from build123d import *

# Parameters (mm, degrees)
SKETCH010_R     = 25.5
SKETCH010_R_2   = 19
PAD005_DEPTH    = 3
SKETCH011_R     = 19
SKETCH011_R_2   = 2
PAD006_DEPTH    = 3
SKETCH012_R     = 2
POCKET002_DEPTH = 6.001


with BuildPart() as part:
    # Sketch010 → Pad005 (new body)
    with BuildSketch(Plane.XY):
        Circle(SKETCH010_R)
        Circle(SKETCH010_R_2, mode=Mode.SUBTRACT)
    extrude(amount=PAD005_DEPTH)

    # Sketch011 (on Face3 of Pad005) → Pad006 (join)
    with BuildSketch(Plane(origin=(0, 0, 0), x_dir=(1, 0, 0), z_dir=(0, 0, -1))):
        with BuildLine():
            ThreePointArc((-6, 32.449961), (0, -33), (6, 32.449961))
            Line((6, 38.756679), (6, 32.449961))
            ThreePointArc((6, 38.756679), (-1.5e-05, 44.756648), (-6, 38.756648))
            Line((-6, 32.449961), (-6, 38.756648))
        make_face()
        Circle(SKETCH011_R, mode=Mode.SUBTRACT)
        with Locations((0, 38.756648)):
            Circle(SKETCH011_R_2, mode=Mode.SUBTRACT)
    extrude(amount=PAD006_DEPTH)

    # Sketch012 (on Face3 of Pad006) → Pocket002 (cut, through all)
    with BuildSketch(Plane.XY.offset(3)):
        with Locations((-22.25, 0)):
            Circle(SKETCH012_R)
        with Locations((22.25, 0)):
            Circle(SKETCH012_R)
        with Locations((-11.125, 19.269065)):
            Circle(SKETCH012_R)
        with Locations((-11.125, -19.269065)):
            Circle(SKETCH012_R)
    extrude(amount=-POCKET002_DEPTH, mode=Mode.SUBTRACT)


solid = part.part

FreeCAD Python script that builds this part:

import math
import FreeCAD as App
import Part
import Sketcher
from FreeCAD import Vector
Q = App.Units.Quantity

doc = App.newDocument("Part")
body = doc.addObject("PartDesign::Body", "Body")

# Sketch on XY plane
sketch1 = body.newObject("Sketcher::SketchObject", "Sketch")
sketch1.AttachmentSupport = (doc.getObject("XY_Plane"), [""])
sketch1.MapMode = "FlatFace"
sketch1.addGeometry([
    Part.Circle(Vector(0, 0, 0), Vector(0, 0, 1), 26),
    Part.Circle(Vector(0, 0, 0), Vector(0, 0, 1), 19),
], False)
sketch1.addConstraint([
    Sketcher.Constraint("Coincident", 0, 3, -1, 1),
    Sketcher.Constraint("Coincident", 1, 3, -1, 1),
    Sketcher.Constraint("Diameter", 0, Q("51 mm")),
    Sketcher.Constraint("Diameter", 1, Q("38 mm")),
])
pad1 = body.newObject("PartDesign::Pad", "Pad")
pad1.Profile = sketch1
pad1.Length = 3

# Sketch on XY plane
sketch2 = body.newObject("Sketcher::SketchObject", "Sketch001")
sketch2.AttachmentSupport = (doc.getObject("XY_Plane"), [""])
sketch2.MapMode = "FlatFace"
sketch2.addGeometry([
    Part.ArcOfCircle(Part.Circle(Vector(0, 0, 0), Vector(0, 0, 1), 33), math.radians(-80), math.radians(260)),  # 0
    Part.LineSegment(Vector(6, -32.4, 0), Vector(6, -38.8, 0)),  # 1
    Part.ArcOfCircle(Part.Circle(Vector(0, -38.8, 0), Vector(0, 0, 1), 6), math.radians(180), math.radians(360)),  # 2
    Part.LineSegment(Vector(-6, -38.8, 0), Vector(-6, -32.4, 0)),  # 3
    Part.Circle(Vector(0, 0, 0), Vector(0, 0, 1), 19),  # 4
    Part.Circle(Vector(0, -38.8, 0), Vector(0, 0, 1), 2),  # 5
], False)
sketch2.addConstraint([
    Sketcher.Constraint("Coincident", 0, 1, 1, 1),
    Sketcher.Constraint("Coincident", 1, 2, 2, 2),
    Sketcher.Constraint("Tangent", 2, 1, 3, 1),
    Sketcher.Constraint("Coincident", 3, 2, 0, 2),
    Sketcher.Constraint("Vertical", 1),
    Sketcher.Constraint("Vertical", 3),
    Sketcher.Constraint("Coincident", 0, 3, -1, 1),
    Sketcher.Constraint("Coincident", 4, 3, -1, 1),
    Sketcher.Constraint("Coincident", 5, 3, 2, 3),
    Sketcher.Constraint("PointOnObject", 2, 3, -2),
    Sketcher.Constraint("Diameter", 4, Q("38 mm")),
    Sketcher.Constraint("Diameter", 5, Q("4 mm")),
    Sketcher.Constraint("Radius", 0, Q("33 mm")),
    Sketcher.Constraint("Radius", 2, Q("6 mm")),
    Sketcher.Constraint("DistanceY", 1, 2, 1, 1, Q("6.306718 mm")),
    Sketcher.Constraint("DistanceY", 3, 1, 3, 2, Q("6.306687 mm")),
])
pad2 = body.newObject("PartDesign::Pad", "Pad001")
pad2.Profile = sketch2
pad2.Length = 3
pad2.Reversed = True

# Sketch on XY plane
sketch3 = body.newObject("Sketcher::SketchObject", "Sketch002")
sketch3.AttachmentSupport = (doc.getObject("XY_Plane"), [""])
sketch3.MapMode = "FlatFace"
sketch3.AttachmentOffset = App.Placement(Vector(0, 0, 3), App.Rotation())
sketch3.addGeometry([
    Part.Circle(Vector(-22.2, 0, 0), Vector(0, 0, 1), 2),
    Part.Circle(Vector(22.2, 0, 0), Vector(0, 0, 1), 2),
    Part.Circle(Vector(-11.1, 19.3, 0), Vector(0, 0, 1), 2),
    Part.Circle(Vector(-11.1, -19.3, 0), Vector(0, 0, 1), 2),
], False)
sketch3.addConstraint([
    Sketcher.Constraint("Equal", 0, 1),
    Sketcher.Constraint("Equal", 1, 2),
    Sketcher.Constraint("Equal", 2, 3),
    Sketcher.Constraint("Symmetric", 0, 3, 1, 3, -1, 1),
    Sketcher.Constraint("Symmetric", 2, 3, 3, 3, -1),
    Sketcher.Constraint("PointOnObject", 0, 3, -1),
    Sketcher.Constraint("Diameter", 0, Q("4 mm")),
    Sketcher.Constraint("DistanceX", 0, 3, 1, 3, Q("44.5 mm")),
    Sketcher.Constraint("DistanceX", 2, 3, -1, 1, Q("11.125 mm")),
    Sketcher.Constraint("DistanceY", 3, 3, 2, 3, Q("38.53813 mm")),
])
pocket1 = body.newObject("PartDesign::Pocket", "Pocket")
pocket1.Profile = sketch3
pocket1.Type = "ThroughAll"

doc.recompute()
